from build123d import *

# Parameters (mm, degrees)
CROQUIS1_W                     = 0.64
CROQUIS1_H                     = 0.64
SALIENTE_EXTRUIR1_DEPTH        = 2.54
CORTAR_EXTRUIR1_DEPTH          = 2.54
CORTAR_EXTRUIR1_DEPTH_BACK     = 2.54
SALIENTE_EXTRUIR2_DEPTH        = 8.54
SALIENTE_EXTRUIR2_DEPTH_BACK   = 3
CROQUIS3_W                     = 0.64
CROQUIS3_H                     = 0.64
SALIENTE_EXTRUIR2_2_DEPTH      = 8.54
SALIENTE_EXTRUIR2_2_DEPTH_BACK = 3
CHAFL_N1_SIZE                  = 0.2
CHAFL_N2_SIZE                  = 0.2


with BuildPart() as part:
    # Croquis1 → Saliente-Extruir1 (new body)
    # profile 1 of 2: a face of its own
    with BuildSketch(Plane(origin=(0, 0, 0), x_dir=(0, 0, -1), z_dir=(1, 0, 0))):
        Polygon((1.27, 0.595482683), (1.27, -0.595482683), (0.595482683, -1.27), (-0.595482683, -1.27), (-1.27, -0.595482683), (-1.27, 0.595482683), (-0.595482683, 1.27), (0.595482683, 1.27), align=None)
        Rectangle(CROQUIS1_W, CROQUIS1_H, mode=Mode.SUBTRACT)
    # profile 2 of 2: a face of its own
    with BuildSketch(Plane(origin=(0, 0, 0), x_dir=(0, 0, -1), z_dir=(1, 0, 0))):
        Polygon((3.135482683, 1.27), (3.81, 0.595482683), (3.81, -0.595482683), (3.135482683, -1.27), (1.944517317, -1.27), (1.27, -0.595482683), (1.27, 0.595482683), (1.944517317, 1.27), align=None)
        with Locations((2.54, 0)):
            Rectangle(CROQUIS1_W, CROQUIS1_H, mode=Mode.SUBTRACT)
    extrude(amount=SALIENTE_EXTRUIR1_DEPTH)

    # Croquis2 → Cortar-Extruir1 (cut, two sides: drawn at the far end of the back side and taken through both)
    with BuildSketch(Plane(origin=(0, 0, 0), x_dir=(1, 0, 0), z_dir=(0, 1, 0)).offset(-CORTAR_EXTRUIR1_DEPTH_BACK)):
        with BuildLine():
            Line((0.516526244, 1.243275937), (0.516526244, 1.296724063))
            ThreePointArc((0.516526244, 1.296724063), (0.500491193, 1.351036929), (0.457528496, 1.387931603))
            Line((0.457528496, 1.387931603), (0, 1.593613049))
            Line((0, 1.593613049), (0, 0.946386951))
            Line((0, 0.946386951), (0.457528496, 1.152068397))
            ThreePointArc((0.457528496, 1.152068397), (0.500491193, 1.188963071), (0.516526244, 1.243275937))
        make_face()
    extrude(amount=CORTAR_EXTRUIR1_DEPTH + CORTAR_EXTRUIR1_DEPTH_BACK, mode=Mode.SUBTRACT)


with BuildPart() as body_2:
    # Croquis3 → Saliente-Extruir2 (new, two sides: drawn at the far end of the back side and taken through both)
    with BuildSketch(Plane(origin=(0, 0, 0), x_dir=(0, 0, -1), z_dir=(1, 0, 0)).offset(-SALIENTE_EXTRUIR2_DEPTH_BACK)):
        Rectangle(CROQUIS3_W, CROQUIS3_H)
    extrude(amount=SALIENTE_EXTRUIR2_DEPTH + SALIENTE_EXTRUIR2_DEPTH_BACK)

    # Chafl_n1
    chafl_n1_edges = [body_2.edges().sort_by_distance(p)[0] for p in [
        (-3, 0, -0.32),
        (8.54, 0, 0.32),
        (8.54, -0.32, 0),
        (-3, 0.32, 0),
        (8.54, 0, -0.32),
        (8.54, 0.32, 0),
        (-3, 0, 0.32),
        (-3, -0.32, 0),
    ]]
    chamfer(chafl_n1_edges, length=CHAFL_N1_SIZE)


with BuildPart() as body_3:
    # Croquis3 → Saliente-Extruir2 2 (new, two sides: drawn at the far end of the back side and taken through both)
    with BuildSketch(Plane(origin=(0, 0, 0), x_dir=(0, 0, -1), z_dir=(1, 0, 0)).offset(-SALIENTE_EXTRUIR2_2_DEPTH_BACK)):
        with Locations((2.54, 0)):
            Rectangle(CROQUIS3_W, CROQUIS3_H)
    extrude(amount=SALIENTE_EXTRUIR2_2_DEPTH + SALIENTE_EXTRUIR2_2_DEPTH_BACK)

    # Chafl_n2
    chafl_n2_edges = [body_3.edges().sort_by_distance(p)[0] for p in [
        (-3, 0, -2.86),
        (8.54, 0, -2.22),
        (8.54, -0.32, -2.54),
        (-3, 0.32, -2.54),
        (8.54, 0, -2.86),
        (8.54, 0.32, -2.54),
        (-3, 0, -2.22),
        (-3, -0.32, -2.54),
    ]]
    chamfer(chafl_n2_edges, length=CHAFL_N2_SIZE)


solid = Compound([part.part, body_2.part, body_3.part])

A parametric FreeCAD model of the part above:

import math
import FreeCAD as App
import Part
import Sketcher
Q = App.Units.Quantity


def edges_at(feature, points):
    """Names of the edges that pass closest to the given points."""
    edges = feature.Shape.Edges
    near = lambda p: min(range(len(edges)), key=lambda i: edges[i].distToShape(Part.Vertex(*p))[0])
    return sorted({f"Edge{near(p) + 1}" for p in points})

doc = App.newDocument("Part")
body = doc.addObject("PartDesign::Body", "Body")

sketch1 = doc.addObject("Sketcher::SketchObject", "Sketch")
body.addObject(sketch1)
sketch1.AttachmentSupport = (doc.YZ_Plane, [""])
sketch1.MapMode = "FlatFace"
sketch1.addGeometry(Part.LineSegment(App.Vector(0.6, -1.3, 0), App.Vector(1.3, -0.6, 0)), False)
sketch1.addGeometry(Part.LineSegment(App.Vector(1.3, -0.6, 0), App.Vector(1.3, 0.6, 0)), False)
sketch1.addGeometry(Part.LineSegment(App.Vector(1.3, 0.6, 0), App.Vector(0.6, 1.3, 0)), False)
sketch1.addGeometry(Part.LineSegment(App.Vector(0.6, 1.3, 0), App.Vector(-0.6, 1.3, 0)), False)
sketch1.addGeometry(Part.LineSegment(App.Vector(-0.6, 1.3, 0), App.Vector(-1.3, 0.6, 0)), False)
sketch1.addGeometry(Part.LineSegment(App.Vector(-1.3, 0.6, 0), App.Vector(-1.3, -0.6, 0)), False)
sketch1.addGeometry(Part.LineSegment(App.Vector(-1.3, -0.6, 0), App.Vector(-0.6, -1.3, 0)), False)
sketch1.addGeometry(Part.LineSegment(App.Vector(-0.6, -1.3, 0), App.Vector(-1.3, -1.9, 0)), False)
sketch1.addGeometry(Part.LineSegment(App.Vector(-1.3, -1.9, 0), App.Vector(-1.3, -3.1, 0)), False)
sketch1.addGeometry(Part.LineSegment(App.Vector(-1.3, -3.1, 0), App.Vector(-0.6, -3.8, 0)), False)
sketch1.addGeometry(Part.LineSegment(App.Vector(-0.6, -3.8, 0), App.Vector(0.6, -3.8, 0)), False)
sketch1.addGeometry(Part.LineSegment(App.Vector(0.6, -3.8, 0), App.Vector(1.3, -3.1, 0)), False)
sketch1.addGeometry(Part.LineSegment(App.Vector(1.3, -3.1, 0), App.Vector(1.3, -1.9, 0)), False)
sketch1.addGeometry(Part.LineSegment(App.Vector(1.3, -1.9, 0), App.Vector(0.6, -1.3, 0)), False)
sketch1.addGeometry(Part.LineSegment(App.Vector(-0.3, 0.3, 0), App.Vector(0.3, 0.3, 0)), False)
sketch1.addGeometry(Part.LineSegment(App.Vector(0.3, 0.3, 0), App.Vector(0.3, -0.3, 0)), False)
sketch1.addGeometry(Part.LineSegment(App.Vector(0.3, -0.3, 0), App.Vector(-0.3, -0.3, 0)), False)
sketch1.addGeometry(Part.LineSegment(App.Vector(-0.3, -0.3, 0), App.Vector(-0.3, 0.3, 0)), False)
sketch1.addGeometry(Part.LineSegment(App.Vector(-0.3, -2.9, 0), App.Vector(-0.3, -2.2, 0)), False)
sketch1.addGeometry(Part.LineSegment(App.Vector(-0.3, -2.2, 0), App.Vector(0.3, -2.2, 0)), False)
sketch1.addGeometry(Part.LineSegment(App.Vector(0.3, -2.2, 0), App.Vector(0.3, -2.9, 0)), False)
sketch1.addGeometry(Part.LineSegment(App.Vector(0.3, -2.9, 0), App.Vector(-0.3, -2.9, 0)), False)
sketch1.addConstraint(Sketcher.Constraint("Coincident", 0, 2, 1, 1))
sketch1.addConstraint(Sketcher.Constraint("Coincident", 1, 2, 2, 1))
sketch1.addConstraint(Sketcher.Constraint("Coincident", 2, 2, 3, 1))
sketch1.addConstraint(Sketcher.Constraint("Coincident", 3, 2, 4, 1))
sketch1.addConstraint(Sketcher.Constraint("Coincident", 4, 2, 5, 1))
sketch1.addConstraint(Sketcher.Constraint("Coincident", 5, 2, 6, 1))
sketch1.addConstraint(Sketcher.Constraint("Coincident", 6, 2, 7, 1))
sketch1.addConstraint(Sketcher.Constraint("Coincident", 7, 2, 8, 1))
sketch1.addConstraint(Sketcher.Constraint("Coincident", 8, 2, 9, 1))
sketch1.addConstraint(Sketcher.Constraint("Coincident", 9, 2, 10, 1))
sketch1.addConstraint(Sketcher.Constraint("Coincident", 10, 2, 11, 1))
sketch1.addConstraint(Sketcher.Constraint("Coincident", 11, 2, 12, 1))
sketch1.addConstraint(Sketcher.Constraint("Coincident", 12, 2, 13, 1))
sketch1.addConstraint(Sketcher.Constraint("Coincident", 13, 2, 0, 1))
sketch1.addConstraint(Sketcher.Constraint("Coincident", 14, 2, 15, 1))
sketch1.addConstraint(Sketcher.Constraint("Coincident", 15, 2, 16, 1))
sketch1.addConstraint(Sketcher.Constraint("Coincident", 16, 2, 17, 1))
sketch1.addConstraint(Sketcher.Constraint("Coincident", 17, 2, 14, 1))
sketch1.addConstraint(Sketcher.Constraint("Coincident", 18, 2, 19, 1))
sketch1.addConstraint(Sketcher.Constraint("Coincident", 19, 2, 20, 1))
sketch1.addConstraint(Sketcher.Constraint("Coincident", 20, 2, 21, 1))
sketch1.addConstraint(Sketcher.Constraint("Coincident", 21, 2, 18, 1))
sketch1.addConstraint(Sketcher.Constraint("Vertical", 1))
sketch1.addConstraint(Sketcher.Constraint("Horizontal", 3))
sketch1.addConstraint(Sketcher.Constraint("Vertical", 5))
sketch1.addConstraint(Sketcher.Constraint("Vertical", 8))
sketch1.addConstraint(Sketcher.Constraint("Horizontal", 10))
sketch1.addConstraint(Sketcher.Constraint("Vertical", 12))
sketch1.addConstraint(Sketcher.Constraint("Horizontal", 14))
sketch1.addConstraint(Sketcher.Constraint("Vertical", 15))
sketch1.addConstraint(Sketcher.Constraint("Horizontal", 16))
sketch1.addConstraint(Sketcher.Constraint("Vertical", 17))
sketch1.addConstraint(Sketcher.Constraint("Vertical", 18))
sketch1.addConstraint(Sketcher.Constraint("Horizontal", 19))
sketch1.addConstraint(Sketcher.Constraint("Vertical", 20))
sketch1.addConstraint(Sketcher.Constraint("Horizontal", 21))
sketch1.addConstraint(Sketcher.Constraint("Symmetric", 0, 2, 4, 2, -1, 1))
sketch1.addConstraint(Sketcher.Constraint("Symmetric", 2, 2, 6, 2, -1, 1))
sketch1.addConstraint(Sketcher.Constraint("Symmetric", 3, 2, 13, 2, -1, 1))
sketch1.addConstraint(Sketcher.Constraint("Symmetric", 14, 2, 16, 2, -1, 1))
sketch1.addConstraint(Sketcher.Constraint("Symmetric", 8, 2, 11, 2, -2))
sketch1.addConstraint(Sketcher.Constraint("Perpendicular", 0, 2))
sketch1.addConstraint(Sketcher.Constraint("Perpendicular", 4, 6))
sketch1.addConstraint(Sketcher.Constraint("Perpendicular", 6, 7))
sketch1.addConstraint(Sketcher.Constraint("Perpendicular", 7, 9))
sketch1.addConstraint(Sketcher.Constraint("Perpendicular", 9, 11))
sketch1.addConstraint(Sketcher.Constraint("Perpendicular", 11, 13))
sketch1.addConstraint(Sketcher.Constraint("Horizontal", 1, 2, 4, 2))
sketch1.addConstraint(Sketcher.Constraint("Horizontal", 7, 2, 12, 2))
sketch1.addConstraint(Sketcher.Constraint("Vertical", 5, 2, 7, 2))
sketch1.addConstraint(Sketcher.Constraint("Vertical", 6, 2, 9, 2))
sketch1.addConstraint(Sketcher.Constraint("Vertical", 17, 2, 18, 2))
sketch1.addConstraint(Sketcher.Constraint("Vertical", 15, 2, 19, 2))
sketch1.addConstraint(Sketcher.Constraint("Equal", 10, 1))
sketch1.addConstraint(Sketcher.Constraint("Equal", 5, 8))
sketch1.addConstraint(Sketcher.Constraint("Equal", 21, 15))
sketch1.addConstraint(Sketcher.Constraint("Equal", 17, 18))
sketch1.addConstraint(Sketcher.Constraint("DistanceX", 14, 1, 14, 2, Q("0.64 mm")))
sketch1.addConstraint(Sketcher.Constraint("DistanceX", -1, 1, 0, 2, Q("1.27 mm")))
sketch1.addConstraint(Sketcher.Constraint("DistanceY", 18, 2, -1, 1, Q("2.22 mm")))
sketch1.addConstraint(Sketcher.Constraint("Distance", 0, Q("0.953912 mm")))
pad1 = doc.addObject("PartDesign::Pad", "Pad")
body.addObject(pad1)
pad1.Profile = sketch1
pad1.Length = 2.54

sketch2 = doc.addObject("Sketcher::SketchObject", "Sketch001")
body.addObject(sketch2)
sketch2.AttachmentSupport = (doc.XZ_Plane, [""])
sketch2.MapMode = "FlatFace"
sketch2.addGeometry(Part.LineSegment(App.Vector(0.52, -1.24, 0), App.Vector(0.52, -1.3, 0)), False)
sketch2.addGeometry(Part.ArcOfCircle(Part.Circle(App.Vector(0.42, -1.3, 0), App.Vector(0, 0, 1), 0.1), math.radians(-66), math.radians(0)), False)
sketch2.addGeometry(Part.LineSegment(App.Vector(0.46, -1.39, 0), App.Vector(0, -1.59, 0)), False)
sketch2.addGeometry(Part.LineSegment(App.Vector(0, -1.59, 0), App.Vector(0, -0.95, 0)), False)
sketch2.addGeometry(Part.LineSegment(App.Vector(0, -0.95, 0), App.Vector(0.46, -1.15, 0)), False)
sketch2.addGeometry(Part.ArcOfCircle(Part.Circle(App.Vector(0.42, -1.24, 0), App.Vector(0, 0, 1), 0.1), math.radians(0), math.radians(66)), False)
sketch2.addConstraint(Sketcher.Constraint("Tangent", 0, 2, 1, 2))
sketch2.addConstraint(Sketcher.Constraint("Tangent", 1, 1, 2, 1))
sketch2.addConstraint(Sketcher.Constraint("Coincident", 2, 2, 3, 1))
sketch2.addConstraint(Sketcher.Constraint("Coincident", 3, 2, 4, 1))
sketch2.addConstraint(Sketcher.Constraint("Tangent", 4, 2, 5, 2))
sketch2.addConstraint(Sketcher.Constraint("Tangent", 5, 1, 0, 1))
sketch2.addConstraint(Sketcher.Constraint("Vertical", 0))
sketch2.addConstraint(Sketcher.Constraint("Vertical", 3))
sketch2.addConstraint(Sketcher.Constraint("Equal", 1, 5))
sketch2.addConstraint(Sketcher.Constraint("PointOnObject", 2, 2, -2))
sketch2.addConstraint(Sketcher.Constraint("Vertical", 1, 1, 4, 2))
sketch2.addConstraint(Sketcher.Constraint("Radius", 1, Q("0.1 mm")))
sketch2.addConstraint(Sketcher.Constraint("DistanceY", 0, 2, 0, 1, Q("0.053448 mm")))
sketch2.addConstraint(Sketcher.Constraint("DistanceY", 3, 1, 3, 2, Q("0.647226 mm")))
sketch2.addConstraint(Sketcher.Constraint("DistanceX", -1, 1, 1, 1, Q("0.457528 mm")))
sketch2.addConstraint(Sketcher.Constraint("DistanceY", 1, 1, -1, 1, Q("1.387932 mm")))
pocket1 = doc.addObject("PartDesign::Pocket", "Pocket")
body.addObject(pocket1)
pocket1.Profile = sketch2
pocket1.Type = "ThroughAll"
pocket1.Midplane = True
body2 = doc.addObject("PartDesign::Body", "Body001")

sketch3 = doc.addObject("Sketcher::SketchObject", "Sketch002")
body2.addObject(sketch3)
sketch3.AttachmentSupport = (doc.getObject("YZ_Plane001"), [""])
sketch3.MapMode = "FlatFace"
sketch3.addGeometry(Part.LineSegment(App.Vector(0.3, 0.3, 0), App.Vector(-0.3, 0.3, 0)), False)
sketch3.addGeometry(Part.LineSegment(App.Vector(-0.3, 0.3, 0), App.Vector(-0.3, -0.3, 0)), False)
sketch3.addGeometry(Part.LineSegment(App.Vector(-0.3, -0.3, 0), App.Vector(0.3, -0.3, 0)), False)
sketch3.addGeometry(Part.LineSegment(App.Vector(0.3, -0.3, 0), App.Vector(0.3, 0.3, 0)), False)
sketch3.addConstraint(Sketcher.Constraint("Coincident", 0, 2, 1, 1))
sketch3.addConstraint(Sketcher.Constraint("Coincident", 1, 2, 2, 1))
sketch3.addConstraint(Sketcher.Constraint("Coincident", 2, 2, 3, 1))
sketch3.addConstraint(Sketcher.Constraint("Coincident", 3, 2, 0, 1))
sketch3.addConstraint(Sketcher.Constraint("Horizontal", 0))
sketch3.addConstraint(Sketcher.Constraint("Vertical", 1))
sketch3.addConstraint(Sketcher.Constraint("Horizontal", 2))
sketch3.addConstraint(Sketcher.Constraint("Vertical", 3))
sketch3.addConstraint(Sketcher.Constraint("Symmetric", 0, 2, 2, 2, -1, 1))
sketch3.addConstraint(Sketcher.Constraint("Equal", 2, 1))
sketch3.addConstraint(Sketcher.Constraint("DistanceX", 0, 2, 0, 1, Q("0.64 mm")))
pad2 = doc.addObject("PartDesign::Pad", "Pad001")
body2.addObject(pad2)
pad2.Profile = sketch3
pad2.Type = "TwoLengths"
pad2.Length = 8.54
pad2.Length2 = 3
doc.recompute()

chamfer = doc.addObject("PartDesign::Chamfer", "Chamfer")
body2.addObject(chamfer)
chamfer.Base = (pad2, edges_at(pad2, [
    (-3, 0, -0.32),
    (8.54, 0, 0.32),
    (8.54, -0.32, 0),
    (-3, 0.32, 0),
    (8.54, 0, -0.32),
    (8.54, 0.32, 0),
    (-3, 0, 0.32),
    (-3, -0.32, 0),
]))
chamfer.Size = 0.2
body3 = doc.addObject("PartDesign::Body", "Body002")

sketch4 = doc.addObject("Sketcher::SketchObject", "Sketch003")
body3.addObject(sketch4)
sketch4.AttachmentSupport = (doc.getObject("YZ_Plane002"), [""])
sketch4.MapMode = "FlatFace"
sketch4.addGeometry(Part.LineSegment(App.Vector(0.3, -2.2, 0), App.Vector(-0.3, -2.2, 0)), False)
sketch4.addGeometry(Part.LineSegment(App.Vector(-0.3, -2.2, 0), App.Vector(-0.3, -2.9, 0)), False)
sketch4.addGeometry(Part.LineSegment(App.Vector(-0.3, -2.9, 0), App.Vector(0.3, -2.9, 0)), False)
sketch4.addGeometry(Part.LineSegment(App.Vector(0.3, -2.9, 0), App.Vector(0.3, -2.2, 0)), False)
sketch4.addConstraint(Sketcher.Constraint("Coincident", 0, 2, 1, 1))
sketch4.addConstraint(Sketcher.Constraint("Coincident", 1, 2, 2, 1))
sketch4.addConstraint(Sketcher.Constraint("Coincident", 2, 2, 3, 1))
sketch4.addConstraint(Sketcher.Constraint("Coincident", 3, 2, 0, 1))
sketch4.addConstraint(Sketcher.Constraint("Horizontal", 0))
sketch4.addConstraint(Sketcher.Constraint("Vertical", 1))
sketch4.addConstraint(Sketcher.Constraint("Horizontal", 2))
sketch4.addConstraint(Sketcher.Constraint("Vertical", 3))
sketch4.addConstraint(Sketcher.Constraint("Equal", 2, 1))
sketch4.addConstraint(Sketcher.Constraint("DistanceX", 0, 2, 0, 1, Q("0.64 mm")))
sketch4.addConstraint(Sketcher.Constraint("DistanceX", 0, 2, -1, 1, Q("0.32 mm")))
sketch4.addConstraint(Sketcher.Constraint("DistanceY", 0, 2, -1, 1, Q("2.22 mm")))
pad3 = doc.addObject("PartDesign::Pad", "Pad002")
body3.addObject(pad3)
pad3.Profile = sketch4
pad3.Type = "TwoLengths"
pad3.Length = 8.54
pad3.Length2 = 3
doc.recompute()

chamfer2 = doc.addObject("PartDesign::Chamfer", "Chamfer001")
body3.addObject(chamfer2)
chamfer2.Base = (pad3, edges_at(pad3, [
    (-3, 0, -2.86),
    (8.54, 0, -2.22),
    (8.54, -0.32, -2.54),
    (-3, 0.32, -2.54),
    (8.54, 0, -2.86),
    (8.54, 0.32, -2.54),
    (-3, 0, -2.22),
    (-3, -0.32, -2.54),
]))
chamfer2.Size = 0.2

doc.recompute()
